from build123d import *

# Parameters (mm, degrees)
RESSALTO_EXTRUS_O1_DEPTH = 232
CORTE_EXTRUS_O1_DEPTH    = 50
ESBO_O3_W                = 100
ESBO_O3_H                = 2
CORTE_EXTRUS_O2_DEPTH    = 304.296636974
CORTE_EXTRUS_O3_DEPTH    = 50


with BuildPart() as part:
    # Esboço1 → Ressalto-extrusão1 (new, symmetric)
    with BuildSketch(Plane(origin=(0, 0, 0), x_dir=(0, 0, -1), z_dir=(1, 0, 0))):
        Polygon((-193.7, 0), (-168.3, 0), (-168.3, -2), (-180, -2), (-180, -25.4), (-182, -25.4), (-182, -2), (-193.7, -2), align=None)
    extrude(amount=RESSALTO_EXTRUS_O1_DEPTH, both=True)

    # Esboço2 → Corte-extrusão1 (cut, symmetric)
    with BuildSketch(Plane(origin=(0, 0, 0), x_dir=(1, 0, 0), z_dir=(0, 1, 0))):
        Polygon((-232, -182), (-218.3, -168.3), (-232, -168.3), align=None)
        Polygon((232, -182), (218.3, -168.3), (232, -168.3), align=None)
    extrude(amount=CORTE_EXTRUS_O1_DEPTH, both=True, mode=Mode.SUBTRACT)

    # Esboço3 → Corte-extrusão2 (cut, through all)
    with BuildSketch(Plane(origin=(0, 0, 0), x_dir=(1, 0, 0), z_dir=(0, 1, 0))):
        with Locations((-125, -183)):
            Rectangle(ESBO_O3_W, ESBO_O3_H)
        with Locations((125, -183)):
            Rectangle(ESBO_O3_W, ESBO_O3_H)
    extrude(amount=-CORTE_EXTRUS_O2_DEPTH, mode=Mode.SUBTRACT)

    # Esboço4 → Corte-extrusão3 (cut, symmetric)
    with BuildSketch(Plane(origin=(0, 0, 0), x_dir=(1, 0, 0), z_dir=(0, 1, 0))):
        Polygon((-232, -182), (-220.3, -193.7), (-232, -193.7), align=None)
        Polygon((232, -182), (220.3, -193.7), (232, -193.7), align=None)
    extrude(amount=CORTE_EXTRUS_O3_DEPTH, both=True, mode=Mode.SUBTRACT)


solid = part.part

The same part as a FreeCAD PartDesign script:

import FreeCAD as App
import Part
import Sketcher
Q = App.Units.Quantity

doc = App.newDocument("Part")
params = doc.addObject("Spreadsheet::Sheet", "Params")
for row, (alias, value) in enumerate([
    ("sketch1_width", "2 mm"),
    ("sketch1_width2", "23.4 mm"),
    ("sketch1_height", "25.4 mm"),
    ("pad1_length", "464 mm"),
    ("sketch2_width", "13.7 mm"),
    ("pocket1_length", "100 mm"),
    ("sketch3_width", "100 mm"),
    ("sketch3_height", "2 mm"),
    ("sketch4_width", "11.7 mm"),
    ("pocket3_length", "100 mm"),
], start=1):
    params.set(f"A{row}", alias)
    params.set(f"B{row}", "=" + value)
    params.setAlias(f"B{row}", alias)

body = doc.addObject("PartDesign::Body", "Body")

sketch1 = doc.addObject("Sketcher::SketchObject", "Sketch")
body.addObject(sketch1)
sketch1.AttachmentSupport = (doc.YZ_Plane, [""])
sketch1.MapMode = "FlatFace"
sketch1.addGeometry([
    Part.LineSegment(App.Vector(0, 168.3, 0), App.Vector(0, 193.7, 0)),
    Part.LineSegment(App.Vector(0, 193.7, 0), App.Vector(-2, 193.7, 0)),
    Part.LineSegment(App.Vector(-2, 193.7, 0), App.Vector(-2, 182, 0)),
    Part.LineSegment(App.Vector(-2, 182, 0), App.Vector(-25.4, 182, 0)),
    Part.LineSegment(App.Vector(-25.4, 182, 0), App.Vector(-25.4, 180, 0)),
    Part.LineSegment(App.Vector(-25.4, 180, 0), App.Vector(-2, 180, 0)),
    Part.LineSegment(App.Vector(-2, 180, 0), App.Vector(-2, 168.3, 0)),
    Part.LineSegment(App.Vector(-2, 168.3, 0), App.Vector(0, 168.3, 0)),
], False)
sketch1.addConstraint([
    Sketcher.Constraint("Coincident", 0, 2, 1, 1),
    Sketcher.Constraint("Coincident", 1, 2, 2, 1),
    Sketcher.Constraint("Coincident", 2, 2, 3, 1),
    Sketcher.Constraint("Coincident", 3, 2, 4, 1),
    Sketcher.Constraint("Coincident", 4, 2, 5, 1),
    Sketcher.Constraint("Coincident", 5, 2, 6, 1),
    Sketcher.Constraint("Coincident", 6, 2, 7, 1),
    Sketcher.Constraint("Coincident", 7, 2, 0, 1),
    Sketcher.Constraint("Vertical", 0),
    Sketcher.Constraint("Horizontal", 1),
    Sketcher.Constraint("Vertical", 2),
    Sketcher.Constraint("Horizontal", 3),
    Sketcher.Constraint("Vertical", 4),
    Sketcher.Constraint("Horizontal", 5),
    Sketcher.Constraint("Vertical", 6),
    Sketcher.Constraint("Horizontal", 7),
    Sketcher.Constraint("PointOnObject", 0, 2, -2),
    Sketcher.Constraint("Vertical", 2, 2, 5, 2),
    Sketcher.Constraint("Equal", 7, 4),
    Sketcher.Constraint("Equal", 2, 6),
    Sketcher.Constraint("DistanceX", 1, 2, 1, 1, Q("2 mm")),
    Sketcher.Constraint("DistanceX", 3, 2, 3, 1, Q("23.4 mm")),
    Sketcher.Constraint("DistanceY", 0, 1, 0, 2, Q("25.4 mm")),
    Sketcher.Constraint("DistanceY", -1, 1, 2, 2, Q("182 mm")),
])
sketch1.setExpression("Constraints[20]", "Params.sketch1_width")
sketch1.setExpression("Constraints[21]", "Params.sketch1_width2")
sketch1.setExpression("Constraints[22]", "Params.sketch1_height")
pad1 = doc.addObject("PartDesign::Pad", "Pad")
body.addObject(pad1)
pad1.Profile = sketch1
pad1.setExpression("Length", "Params.pad1_length")
pad1.Midplane = True

sketch2 = doc.addObject("Sketcher::SketchObject", "Sketch001")
body.addObject(sketch2)
sketch2.AttachmentSupport = (doc.XZ_Plane, [""])
sketch2.MapMode = "FlatFace"
sketch2.addGeometry([
    Part.LineSegment(App.Vector(-232, 182, 0), App.Vector(-218, 168, 0)),
    Part.LineSegment(App.Vector(-218, 168, 0), App.Vector(-232, 168, 0)),
    Part.LineSegment(App.Vector(-232, 168, 0), App.Vector(-232, 182, 0)),
    Part.LineSegment(App.Vector(218, 168, 0), App.Vector(232, 182, 0)),
    Part.LineSegment(App.Vector(232, 182, 0), App.Vector(232, 168, 0)),
    Part.LineSegment(App.Vector(232, 168, 0), App.Vector(218, 168, 0)),
], False)
sketch2.addConstraint([
    Sketcher.Constraint("Coincident", 0, 2, 1, 1),
    Sketcher.Constraint("Coincident", 1, 2, 2, 1),
    Sketcher.Constraint("Coincident", 2, 2, 0, 1),
    Sketcher.Constraint("Coincident", 3, 2, 4, 1),
    Sketcher.Constraint("Coincident", 4, 2, 5, 1),
    Sketcher.Constraint("Coincident", 5, 2, 3, 1),
    Sketcher.Constraint("Horizontal", 1),
    Sketcher.Constraint("Vertical", 2),
    Sketcher.Constraint("Vertical", 4),
    Sketcher.Constraint("Horizontal", 5),
    Sketcher.Constraint("Symmetric", 2, 2, 3, 2, -2),
    Sketcher.Constraint("Symmetric", 0, 2, 5, 2, -2),
    Sketcher.Constraint("Perpendicular", 0, 3),
    Sketcher.Constraint("DistanceX", 1, 2, 1, 1, Q("13.7 mm")),
    Sketcher.Constraint("DistanceX", 1, 2, -1, 1, Q("232 mm")),
    Sketcher.Constraint("DistanceY", -1, 1, 2, 2, Q("182 mm")),
])
sketch2.setExpression("Constraints[13]", "Params.sketch2_width")
pocket1 = doc.addObject("PartDesign::Pocket", "Pocket")
body.addObject(pocket1)
pocket1.Profile = sketch2
pocket1.setExpression("Length", "Params.pocket1_length")
pocket1.Midplane = True

sketch3 = doc.addObject("Sketcher::SketchObject", "Sketch002")
body.addObject(sketch3)
sketch3.AttachmentSupport = (doc.XZ_Plane, [""])
sketch3.MapMode = "FlatFace"
sketch3.addGeometry([
    Part.LineSegment(App.Vector(-175, 182, 0), App.Vector(-175, 184, 0)),
    Part.LineSegment(App.Vector(-175, 184, 0), App.Vector(-75, 184, 0)),
    Part.LineSegment(App.Vector(-75, 184, 0), App.Vector(-75, 182, 0)),
    Part.LineSegment(App.Vector(-75, 182, 0), App.Vector(-175, 182, 0)),
    Part.LineSegment(App.Vector(75, 182, 0), App.Vector(75, 184, 0)),
    Part.LineSegment(App.Vector(75, 184, 0), App.Vector(175, 184, 0)),
    Part.LineSegment(App.Vector(175, 184, 0), App.Vector(175, 182, 0)),
    Part.LineSegment(App.Vector(175, 182, 0), App.Vector(75, 182, 0)),
], False)
sketch3.addConstraint([
    Sketcher.Constraint("Coincident", 0, 2, 1, 1),
    Sketcher.Constraint("Coincident", 1, 2, 2, 1),
    Sketcher.Constraint("Coincident", 2, 2, 3, 1),
    Sketcher.Constraint("Coincident", 3, 2, 0, 1),
    Sketcher.Constraint("Coincident", 4, 2, 5, 1),
    Sketcher.Constraint("Coincident", 5, 2, 6, 1),
    Sketcher.Constraint("Coincident", 6, 2, 7, 1),
    Sketcher.Constraint("Coincident", 7, 2, 4, 1),
    Sketcher.Constraint("Vertical", 0),
    Sketcher.Constraint("Horizontal", 1),
    Sketcher.Constraint("Vertical", 2),
    Sketcher.Constraint("Horizontal", 3),
    Sketcher.Constraint("Vertical", 4),
    Sketcher.Constraint("Horizontal", 5),
    Sketcher.Constraint("Vertical", 6),
    Sketcher.Constraint("Horizontal", 7),
    Sketcher.Constraint("Symmetric", 1, 2, 4, 2, -2),
    Sketcher.Constraint("Symmetric", 3, 2, 6, 2, -2),
    Sketcher.Constraint("DistanceX", 1, 1, 1, 2, Q("100 mm")),
    Sketcher.Constraint("DistanceY", 0, 1, 0, 2, Q("2 mm")),
    Sketcher.Constraint("DistanceX", 0, 2, -1, 1, Q("175 mm")),
    Sketcher.Constraint("DistanceY", -1, 1, 0, 2, Q("184 mm")),
])
sketch3.setExpression("Constraints[18]", "Params.sketch3_width")
sketch3.setExpression("Constraints[19]", "Params.sketch3_height")
pocket2 = doc.addObject("PartDesign::Pocket", "Pocket001")
body.addObject(pocket2)
pocket2.Profile = sketch3
pocket2.Type = "ThroughAll"
pocket2.Reversed = True

sketch4 = doc.addObject("Sketcher::SketchObject", "Sketch003")
body.addObject(sketch4)
sketch4.AttachmentSupport = (doc.XZ_Plane, [""])
sketch4.MapMode = "FlatFace"
sketch4.addGeometry([
    Part.LineSegment(App.Vector(-220, 194, 0), App.Vector(-232, 182, 0)),
    Part.LineSegment(App.Vector(-232, 182, 0), App.Vector(-232, 194, 0)),
    Part.LineSegment(App.Vector(-232, 194, 0), App.Vector(-220, 194, 0)),
    Part.LineSegment(App.Vector(232, 182, 0), App.Vector(220, 194, 0)),
    Part.LineSegment(App.Vector(220, 194, 0), App.Vector(232, 194, 0)),
    Part.LineSegment(App.Vector(232, 194, 0), App.Vector(232, 182, 0)),
], False)
sketch4.addConstraint([
    Sketcher.Constraint("Coincident", 0, 2, 1, 1),
    Sketcher.Constraint("Coincident", 1, 2, 2, 1),
    Sketcher.Constraint("Coincident", 2, 2, 0, 1),
    Sketcher.Constraint("Coincident", 3, 2, 4, 1),
    Sketcher.Constraint("Coincident", 4, 2, 5, 1),
    Sketcher.Constraint("Coincident", 5, 2, 3, 1),
    Sketcher.Constraint("Vertical", 1),
    Sketcher.Constraint("Horizontal", 2),
    Sketcher.Constraint("Horizontal", 4),
    Sketcher.Constraint("Vertical", 5),
    Sketcher.Constraint("Symmetric", 2, 2, 3, 2, -2),
    Sketcher.Constraint("Symmetric", 0, 2, 5, 2, -2),
    Sketcher.Constraint("Perpendicular", 0, 3),
    Sketcher.Constraint("DistanceX", 2, 1, 2, 2, Q("11.7 mm")),
    Sketcher.Constraint("DistanceX", 0, 2, -1, 1, Q("232 mm")),
    Sketcher.Constraint("DistanceY", -1, 1, 0, 2, Q("182 mm")),
])
sketch4.setExpression("Constraints[13]", "Params.sketch4_width")
pocket3 = doc.addObject("PartDesign::Pocket", "Pocket002")
body.addObject(pocket3)
pocket3.Profile = sketch4
pocket3.setExpression("Length", "Params.pocket3_length")
pocket3.Midplane = True

doc.recompute()
